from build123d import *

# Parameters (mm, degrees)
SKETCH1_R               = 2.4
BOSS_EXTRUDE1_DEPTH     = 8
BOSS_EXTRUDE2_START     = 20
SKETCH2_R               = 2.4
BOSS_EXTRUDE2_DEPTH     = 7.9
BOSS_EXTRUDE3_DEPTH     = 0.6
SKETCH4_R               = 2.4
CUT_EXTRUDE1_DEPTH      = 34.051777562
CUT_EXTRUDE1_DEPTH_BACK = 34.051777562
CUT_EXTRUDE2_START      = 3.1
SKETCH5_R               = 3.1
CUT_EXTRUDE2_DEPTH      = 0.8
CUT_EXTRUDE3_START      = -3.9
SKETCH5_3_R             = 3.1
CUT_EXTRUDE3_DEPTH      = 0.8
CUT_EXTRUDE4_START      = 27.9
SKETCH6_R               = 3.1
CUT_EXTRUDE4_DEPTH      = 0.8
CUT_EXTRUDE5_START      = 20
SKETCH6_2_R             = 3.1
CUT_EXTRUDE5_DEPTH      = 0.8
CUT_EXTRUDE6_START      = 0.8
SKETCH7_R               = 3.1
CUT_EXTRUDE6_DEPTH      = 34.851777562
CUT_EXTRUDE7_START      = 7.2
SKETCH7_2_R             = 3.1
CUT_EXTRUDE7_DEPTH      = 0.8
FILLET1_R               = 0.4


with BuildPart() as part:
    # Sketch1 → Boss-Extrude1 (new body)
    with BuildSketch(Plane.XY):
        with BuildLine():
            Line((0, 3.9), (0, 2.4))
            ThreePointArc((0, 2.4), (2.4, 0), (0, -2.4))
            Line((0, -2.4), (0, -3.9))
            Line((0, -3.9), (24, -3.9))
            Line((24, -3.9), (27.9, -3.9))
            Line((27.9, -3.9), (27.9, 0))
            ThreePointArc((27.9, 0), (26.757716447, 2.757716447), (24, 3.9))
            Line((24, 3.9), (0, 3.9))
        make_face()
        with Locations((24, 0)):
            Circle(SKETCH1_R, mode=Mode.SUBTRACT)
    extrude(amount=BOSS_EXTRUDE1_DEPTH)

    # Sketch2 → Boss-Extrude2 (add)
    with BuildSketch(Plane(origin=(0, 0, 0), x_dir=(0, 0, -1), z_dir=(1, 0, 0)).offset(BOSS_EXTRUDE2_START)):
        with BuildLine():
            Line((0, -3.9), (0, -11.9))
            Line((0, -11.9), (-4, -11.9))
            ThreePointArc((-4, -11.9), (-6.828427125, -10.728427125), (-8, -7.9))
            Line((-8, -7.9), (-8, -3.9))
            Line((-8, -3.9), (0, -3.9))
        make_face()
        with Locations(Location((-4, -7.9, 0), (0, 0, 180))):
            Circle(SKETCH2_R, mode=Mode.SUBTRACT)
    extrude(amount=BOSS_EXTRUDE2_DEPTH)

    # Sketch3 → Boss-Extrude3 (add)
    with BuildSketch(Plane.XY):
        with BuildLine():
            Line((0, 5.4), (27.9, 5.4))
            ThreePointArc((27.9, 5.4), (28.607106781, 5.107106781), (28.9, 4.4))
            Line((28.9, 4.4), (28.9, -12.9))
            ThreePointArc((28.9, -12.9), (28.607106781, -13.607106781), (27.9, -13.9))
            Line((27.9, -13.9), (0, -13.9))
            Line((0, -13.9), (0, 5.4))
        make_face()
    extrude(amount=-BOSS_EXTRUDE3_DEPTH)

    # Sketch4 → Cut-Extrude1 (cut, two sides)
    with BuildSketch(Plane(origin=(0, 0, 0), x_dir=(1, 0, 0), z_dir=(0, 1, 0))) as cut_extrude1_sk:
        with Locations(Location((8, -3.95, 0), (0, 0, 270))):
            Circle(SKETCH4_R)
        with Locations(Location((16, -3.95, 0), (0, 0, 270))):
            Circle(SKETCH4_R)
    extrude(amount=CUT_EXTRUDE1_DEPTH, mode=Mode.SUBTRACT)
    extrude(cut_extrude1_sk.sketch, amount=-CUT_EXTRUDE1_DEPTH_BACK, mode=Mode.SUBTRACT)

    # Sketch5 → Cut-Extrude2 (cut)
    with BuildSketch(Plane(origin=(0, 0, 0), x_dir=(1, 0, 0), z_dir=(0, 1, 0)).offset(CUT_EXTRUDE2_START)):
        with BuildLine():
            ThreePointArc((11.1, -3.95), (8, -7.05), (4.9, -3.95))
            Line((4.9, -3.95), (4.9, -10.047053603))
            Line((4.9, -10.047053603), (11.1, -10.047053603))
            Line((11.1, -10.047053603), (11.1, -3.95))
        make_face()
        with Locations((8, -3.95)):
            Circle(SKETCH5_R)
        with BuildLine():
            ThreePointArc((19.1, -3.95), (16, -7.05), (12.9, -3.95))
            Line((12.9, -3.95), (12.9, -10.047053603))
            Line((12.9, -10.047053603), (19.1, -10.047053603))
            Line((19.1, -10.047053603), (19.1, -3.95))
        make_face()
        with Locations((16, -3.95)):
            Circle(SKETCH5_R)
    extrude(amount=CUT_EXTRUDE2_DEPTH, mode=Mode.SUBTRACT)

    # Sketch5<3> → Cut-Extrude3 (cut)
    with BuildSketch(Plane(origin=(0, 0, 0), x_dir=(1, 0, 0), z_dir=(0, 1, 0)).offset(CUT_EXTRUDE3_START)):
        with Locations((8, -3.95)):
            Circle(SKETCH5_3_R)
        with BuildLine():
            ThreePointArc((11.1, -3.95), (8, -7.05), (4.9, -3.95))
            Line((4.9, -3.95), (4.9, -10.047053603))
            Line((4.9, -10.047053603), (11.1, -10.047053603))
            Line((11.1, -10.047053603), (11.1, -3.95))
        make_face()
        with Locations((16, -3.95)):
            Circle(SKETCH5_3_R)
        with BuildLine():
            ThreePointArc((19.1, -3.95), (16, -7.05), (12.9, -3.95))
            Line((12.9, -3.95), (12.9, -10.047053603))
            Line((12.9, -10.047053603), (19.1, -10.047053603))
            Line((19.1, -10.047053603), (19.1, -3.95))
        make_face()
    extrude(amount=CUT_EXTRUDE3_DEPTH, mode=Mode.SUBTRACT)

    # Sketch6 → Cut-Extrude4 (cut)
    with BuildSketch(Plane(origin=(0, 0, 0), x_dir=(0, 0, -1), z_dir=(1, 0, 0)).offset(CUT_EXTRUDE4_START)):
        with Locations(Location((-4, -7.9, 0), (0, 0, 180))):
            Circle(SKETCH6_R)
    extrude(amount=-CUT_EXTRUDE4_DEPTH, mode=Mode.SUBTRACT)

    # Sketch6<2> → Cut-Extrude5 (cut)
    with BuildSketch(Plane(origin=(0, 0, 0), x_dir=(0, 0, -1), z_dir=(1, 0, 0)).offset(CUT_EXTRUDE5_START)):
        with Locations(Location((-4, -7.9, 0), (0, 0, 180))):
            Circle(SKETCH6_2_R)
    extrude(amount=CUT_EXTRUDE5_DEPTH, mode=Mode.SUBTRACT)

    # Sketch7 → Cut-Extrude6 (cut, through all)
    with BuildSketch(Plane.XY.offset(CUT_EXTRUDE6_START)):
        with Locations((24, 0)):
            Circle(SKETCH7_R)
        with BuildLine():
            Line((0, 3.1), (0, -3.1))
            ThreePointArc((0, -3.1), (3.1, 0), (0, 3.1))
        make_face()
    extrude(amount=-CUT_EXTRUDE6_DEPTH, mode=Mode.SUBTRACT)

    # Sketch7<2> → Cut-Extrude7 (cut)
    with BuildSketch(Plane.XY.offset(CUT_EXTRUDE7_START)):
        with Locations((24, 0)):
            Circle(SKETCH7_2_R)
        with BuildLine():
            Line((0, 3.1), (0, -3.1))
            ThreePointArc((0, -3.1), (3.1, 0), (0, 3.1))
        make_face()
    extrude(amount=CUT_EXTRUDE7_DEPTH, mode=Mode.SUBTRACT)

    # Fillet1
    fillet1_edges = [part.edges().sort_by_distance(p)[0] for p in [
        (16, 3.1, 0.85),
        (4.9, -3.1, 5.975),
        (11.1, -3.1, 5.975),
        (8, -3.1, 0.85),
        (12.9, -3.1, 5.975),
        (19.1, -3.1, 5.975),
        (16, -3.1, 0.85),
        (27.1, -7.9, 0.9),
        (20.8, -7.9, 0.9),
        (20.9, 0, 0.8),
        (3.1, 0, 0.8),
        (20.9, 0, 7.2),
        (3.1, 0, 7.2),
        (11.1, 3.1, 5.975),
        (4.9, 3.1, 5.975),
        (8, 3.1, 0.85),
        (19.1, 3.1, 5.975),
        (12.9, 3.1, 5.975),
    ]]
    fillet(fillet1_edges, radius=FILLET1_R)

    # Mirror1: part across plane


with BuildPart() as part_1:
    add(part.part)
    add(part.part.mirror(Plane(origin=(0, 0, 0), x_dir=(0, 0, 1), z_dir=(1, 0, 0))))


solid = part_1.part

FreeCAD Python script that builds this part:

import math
import FreeCAD as App
import Part
import Sketcher
from FreeCAD import Vector


def edges_at(feature, points):
    """Names of the edges that pass closest to the given points."""
    edges = feature.Shape.Edges
    near = lambda p: min(range(len(edges)), key=lambda i: edges[i].distToShape(Part.Vertex(*p))[0])
    return sorted({f"Edge{near(p) + 1}" for p in points})

doc = App.newDocument("Part")
body = doc.addObject("PartDesign::Body", "Body")

# Sketch on XY plane
sketch1 = body.newObject("Sketcher::SketchObject", "Sketch")
sketch1.AttachmentSupport = (doc.getObject("XY_Plane"), [""])
sketch1.MapMode = "FlatFace"
sketch1.addGeometry([
    Part.LineSegment(Vector(0, 3.9, 0), Vector(0, 2.4, 0)),  # 0
    Part.ArcOfCircle(Part.Circle(Vector(0, 0, 0), Vector(0, 0, 1), 2.4), math.radians(-90), math.radians(90)),  # 1
    Part.LineSegment(Vector(0, -2.4, 0), Vector(0, -3.9, 0)),  # 2
    Part.LineSegment(Vector(0, -3.9, 0), Vector(27.9, -3.9, 0)),  # 3
    Part.LineSegment(Vector(27.9, -3.9, 0), Vector(27.9, 0, 0)),  # 4
    Part.ArcOfCircle(Part.Circle(Vector(24, 0, 0), Vector(0, 0, 1), 3.9), math.radians(0), math.radians(90)),  # 5
    Part.LineSegment(Vector(24, 3.9, 0), Vector(0, 3.9, 0)),  # 6
    Part.Circle(Vector(24, 0, 0), Vector(0, 0, 1), 2.4),  # 7
], False)
sketch1.addConstraint([
    Sketcher.Constraint("Coincident", 0, 2, 1, 2),
    Sketcher.Constraint("Coincident", 1, 1, 2, 1),
    Sketcher.Constraint("Coincident", 2, 2, 3, 1),
    Sketcher.Constraint("Coincident", 3, 2, 4, 1),
    Sketcher.Constraint("Tangent", 4, 2, 5, 1),
    Sketcher.Constraint("Tangent", 5, 2, 6, 1),
    Sketcher.Constraint("Coincident", 6, 2, 0, 1),
    Sketcher.Constraint("Vertical", 0),
    Sketcher.Constraint("Vertical", 2),
    Sketcher.Constraint("Horizontal", 3),
    Sketcher.Constraint("Vertical", 4),
    Sketcher.Constraint("Horizontal", 6),
    Sketcher.Constraint("Coincident", 1, 3, -1, 1),
    Sketcher.Constraint("Coincident", 7, 3, 5, 3),
    Sketcher.Constraint("Equal", 1, 7),
    Sketcher.Constraint("Symmetric", 2, 2, 6, 2, -1, 1),
    Sketcher.Constraint("PointOnObject", 5, 3, -1),
    Sketcher.Constraint("PointOnObject", 0, 2, -2),
    Sketcher.Constraint("Diameter", 7, 4.8),
    Sketcher.Constraint("Radius", 5, 3.9),
    Sketcher.Constraint("DistanceX", 6, 2, 6, 1, 24.0),
])
pad1 = body.newObject("PartDesign::Pad", "Pad")
pad1.Profile = sketch1
pad1.Length = 8

# Sketch on YZ plane
sketch2 = body.newObject("Sketcher::SketchObject", "Sketch001")
sketch2.AttachmentSupport = (doc.getObject("YZ_Plane"), [""])
sketch2.MapMode = "FlatFace"
sketch2.AttachmentOffset = App.Placement(Vector(0, 0, 20), App.Rotation())
sketch2.addGeometry([
    Part.LineSegment(Vector(-11.9, 0, 0), Vector(-3.9, 0, 0)),  # 0
    Part.LineSegment(Vector(-3.9, 0, 0), Vector(-3.9, 8, 0)),  # 1
    Part.LineSegment(Vector(-3.9, 8, 0), Vector(-7.9, 8, 0)),  # 2
    Part.ArcOfCircle(Part.Circle(Vector(-7.9, 4, 0), Vector(0, 0, 1), 4), math.radians(90), math.radians(180)),  # 3
    Part.LineSegment(Vector(-11.9, 4, 0), Vector(-11.9, 0, 0)),  # 4
    Part.Circle(Vector(-7.9, 4, 0), Vector(0, 0, 1), 2.4),  # 5
], False)
sketch2.addConstraint([
    Sketcher.Constraint("Coincident", 0, 2, 1, 1),
    Sketcher.Constraint("Coincident", 1, 2, 2, 1),
    Sketcher.Constraint("Tangent", 2, 2, 3, 1),
    Sketcher.Constraint("Tangent", 3, 2, 4, 1),
    Sketcher.Constraint("Coincident", 4, 2, 0, 1),
    Sketcher.Constraint("Horizontal", 0),
    Sketcher.Constraint("Vertical", 1),
    Sketcher.Constraint("Horizontal", 2),
    Sketcher.Constraint("Vertical", 4),
    Sketcher.Constraint("Coincident", 5, 3, 3, 3),
    Sketcher.Constraint("PointOnObject", 0, 2, -1),
    Sketcher.Constraint("Equal", 0, 1),
    Sketcher.Constraint("Radius", 3, 4.0),
    Sketcher.Constraint("Diameter", 5, 4.8),
    Sketcher.Constraint("DistanceX", 0, 1, 0, 2, 8.0),
    Sketcher.Constraint("DistanceX", 3, 3, -1, 1, 7.9),
])
pad2 = body.newObject("PartDesign::Pad", "Pad001")
pad2.Profile = sketch2
pad2.Length = 7.9

# Sketch on XY plane
sketch3 = body.newObject("Sketcher::SketchObject", "Sketch002")
sketch3.AttachmentSupport = (doc.getObject("XY_Plane"), [""])
sketch3.MapMode = "FlatFace"
sketch3.addGeometry([
    Part.LineSegment(Vector(27.9, 5.4, 0), Vector(0, 5.4, 0)),  # 0
    Part.LineSegment(Vector(0, 5.4, 0), Vector(0, -13.9, 0)),  # 1
    Part.LineSegment(Vector(0, -13.9, 0), Vector(27.9, -13.9, 0)),  # 2
    Part.ArcOfCircle(Part.Circle(Vector(27.9, -12.9, 0), Vector(0, 0, 1), 1), math.radians(-90), math.radians(0)),  # 3
    Part.LineSegment(Vector(28.9, -12.9, 0), Vector(28.9, 4.4, 0)),  # 4
    Part.ArcOfCircle(Part.Circle(Vector(27.9, 4.4, 0), Vector(0, 0, 1), 1), math.radians(0), math.radians(90)),  # 5
], False)
sketch3.addConstraint([
    Sketcher.Constraint("Coincident", 0, 2, 1, 1),
    Sketcher.Constraint("Coincident", 1, 2, 2, 1),
    Sketcher.Constraint("Tangent", 2, 2, 3, 1),
    Sketcher.Constraint("Tangent", 3, 2, 4, 1),
    Sketcher.Constraint("Tangent", 4, 2, 5, 1),
    Sketcher.Constraint("Tangent", 5, 2, 0, 1),
    Sketcher.Constraint("Horizontal", 0),
    Sketcher.Constraint("Vertical", 1),
    Sketcher.Constraint("Horizontal", 2),
    Sketcher.Constraint("Vertical", 4),
    Sketcher.Constraint("Equal", 3, 5),
    Sketcher.Constraint("PointOnObject", 0, 2, -2),
    Sketcher.Constraint("Radius", 3, 1.0),
    Sketcher.Constraint("DistanceX", 0, 2, 0, 1, 27.9),
    Sketcher.Constraint("DistanceY", 1, 2, 1, 1, 19.3),
    Sketcher.Constraint("DistanceY", 3, 3, -1, 1, 12.9),
])
pad3 = body.newObject("PartDesign::Pad", "Pad002")
pad3.Profile = sketch3
pad3.Length = 0.6
pad3.Reversed = True

# Sketch on XZ plane
sketch4 = body.newObject("Sketcher::SketchObject", "Sketch003")
sketch4.AttachmentSupport = (doc.getObject("XZ_Plane"), [""])
sketch4.MapMode = "FlatFace"
sketch4.addGeometry([
    Part.Circle(Vector(8, 4, 0), Vector(0, 0, 1), 2.4),
    Part.Circle(Vector(16, 4, 0), Vector(0, 0, 1), 2.4),
], False)
sketch4.addConstraint([
    Sketcher.Constraint("Equal", 0, 1),
    Sketcher.Constraint("Horizontal", 0, 3, 1, 3),
    Sketcher.Constraint("Diameter", 0, 4.8),
    Sketcher.Constraint("DistanceX", -1, 1, 0, 3, 8.0),
    Sketcher.Constraint("DistanceX", -1, 1, 1, 3, 16.0),
    Sketcher.Constraint("DistanceY", -1, 1, 0, 3, 3.95),
])
pocket1 = body.newObject("PartDesign::Pocket", "Pocket")
pocket1.Profile = sketch4
pocket1.Type = "ThroughAll"
pocket1.Midplane = True

# Sketch on XZ plane
sketch5 = body.newObject("Sketcher::SketchObject", "Sketch004")
sketch5.AttachmentSupport = (doc.getObject("XZ_Plane"), [""])
sketch5.MapMode = "FlatFace"
sketch5.AttachmentOffset = App.Placement(Vector(0, 0, -3.1), App.Rotation())
sketch5.addGeometry([
    Part.LineSegment(Vector(4.9, 4, 0), Vector(4.9, 10, 0)),  # 0
    Part.LineSegment(Vector(4.9, 10, 0), Vector(11.1, 10, 0)),  # 1
    Part.LineSegment(Vector(11.1, 10, 0), Vector(11.1, 4, 0)),  # 2
    Part.ArcOfCircle(Part.Circle(Vector(8, 4, 0), Vector(0, 0, 1), 3.1), math.radians(180), math.radians(360)),  # 3
    Part.LineSegment(Vector(12.9, 4, 0), Vector(12.9, 10, 0)),  # 4
    Part.LineSegment(Vector(12.9, 10, 0), Vector(19.1, 10, 0)),  # 5
    Part.LineSegment(Vector(19.1, 10, 0), Vector(19.1, 4, 0)),  # 6
    Part.ArcOfCircle(Part.Circle(Vector(16, 4, 0), Vector(0, 0, 1), 3.1), math.radians(180), math.radians(360)),  # 7
], False)
sketch5.addConstraint([
    Sketcher.Constraint("Coincident", 0, 2, 1, 1),
    Sketcher.Constraint("Coincident", 1, 2, 2, 1),
    Sketcher.Constraint("Tangent", 2, 2, 3, 2),
    Sketcher.Constraint("Tangent", 3, 1, 0, 1),
    Sketcher.Constraint("Coincident", 4, 2, 5, 1),
    Sketcher.Constraint("Coincident", 5, 2, 6, 1),
    Sketcher.Constraint("Tangent", 6, 2, 7, 2),
    Sketcher.Constraint("Tangent", 7, 1, 4, 1),
    Sketcher.Constraint("Vertical", 0),
    Sketcher.Constraint("Horizontal", 1),
    Sketcher.Constraint("Vertical", 2),
    Sketcher.Constraint("Vertical", 4),
    Sketcher.Constraint("Horizontal", 5),
    Sketcher.Constraint("Vertical", 6),
    Sketcher.Constraint("Equal", 3, 7),
    Sketcher.Constraint("Horizontal", 3, 3, 7, 3),
    Sketcher.Constraint("Horizontal", 1, 2, 4, 2),
    Sketcher.Constraint("Radius", 3, 3.1),
    Sketcher.Constraint("DistanceX", -1, 1, 3, 3, 8.0),
    Sketcher.Constraint("DistanceX", -1, 1, 7, 3, 16.0),
    Sketcher.Constraint("DistanceY", -1, 1, 3, 3, 3.95),
    Sketcher.Constraint("DistanceY", 0, 1, 0, 2, 6.097054),
])
pocket2 = body.newObject("PartDesign::Pocket", "Pocket001")
pocket2.Profile = sketch5
pocket2.Length = 0.8

# Sketch on XZ plane
sketch6 = body.newObject("Sketcher::SketchObject", "Sketch005")
sketch6.AttachmentSupport = (doc.getObject("XZ_Plane"), [""])
sketch6.MapMode = "FlatFace"
sketch6.AttachmentOffset = App.Placement(Vector(0, 0, 3.9), App.Rotation())
sketch6.addGeometry([
    Part.ArcOfCircle(Part.Circle(Vector(8, 4, 0), Vector(0, 0, 1), 3.1), math.radians(180), math.radians(360)),  # 0
    Part.LineSegment(Vector(4.9, 4, 0), Vector(4.9, 10, 0)),  # 1
    Part.LineSegment(Vector(4.9, 10, 0), Vector(11.1, 10, 0)),  # 2
    Part.LineSegment(Vector(11.1, 10, 0), Vector(11.1, 4, 0)),  # 3
    Part.ArcOfCircle(Part.Circle(Vector(16, 4, 0), Vector(0, 0, 1), 3.1), math.radians(180), math.radians(360)),  # 4
    Part.LineSegment(Vector(12.9, 4, 0), Vector(12.9, 10, 0)),  # 5
    Part.LineSegment(Vector(12.9, 10, 0), Vector(19.1, 10, 0)),  # 6
    Part.LineSegment(Vector(19.1, 10, 0), Vector(19.1, 4, 0)),  # 7
], False)
sketch6.addConstraint([
    Sketcher.Constraint("Tangent", 0, 1, 1, 1),
    Sketcher.Constraint("Coincident", 1, 2, 2, 1),
    Sketcher.Constraint("Coincident", 2, 2, 3, 1),
    Sketcher.Constraint("Tangent", 3, 2, 0, 2),
    Sketcher.Constraint("Tangent", 4, 1, 5, 1),
    Sketcher.Constraint("Coincident", 5, 2, 6, 1),
    Sketcher.Constraint("Coincident", 6, 2, 7, 1),
    Sketcher.Constraint("Tangent", 7, 2, 4, 2),
    Sketcher.Constraint("Vertical", 1),
    Sketcher.Constraint("Horizontal", 2),
    Sketcher.Constraint("Vertical", 3),
    Sketcher.Constraint("Vertical", 5),
    Sketcher.Constraint("Horizontal", 6),
    Sketcher.Constraint("Vertical", 7),
    Sketcher.Constraint("Equal", 0, 4),
    Sketcher.Constraint("Horizontal", 0, 3, 4, 3),
    Sketcher.Constraint("Horizontal", 2, 2, 5, 2),
    Sketcher.Constraint("Radius", 0, 3.1),
    Sketcher.Constraint("DistanceX", -1, 1, 0, 3, 8.0),
    Sketcher.Constraint("DistanceX", -1, 1, 4, 3, 16.0),
    Sketcher.Constraint("DistanceY", -1, 1, 0, 3, 3.95),
    Sketcher.Constraint("DistanceY", 1, 1, 1, 2, 6.097054),
])
pocket3 = body.newObject("PartDesign::Pocket", "Pocket002")
pocket3.Profile = sketch6
pocket3.Length = 0.8

# Sketch on YZ plane
sketch7 = body.newObject("Sketcher::SketchObject", "Sketch006")
sketch7.AttachmentSupport = (doc.getObject("YZ_Plane"), [""])
sketch7.MapMode = "FlatFace"
sketch7.AttachmentOffset = App.Placement(Vector(0, 0, 27.9), App.Rotation())
sketch7.addGeometry(Part.Circle(Vector(-7.9, 4, 0), Vector(0, 0, 1), 3.1), False)
sketch7.addConstraint([
    Sketcher.Constraint("Diameter", 0, 6.2),
    Sketcher.Constraint("DistanceY", -1, 1, 0, 3, 4.0),
    Sketcher.Constraint("DistanceX", 0, 3, -1, 1, 7.9),
])
pocket4 = body.newObject("PartDesign::Pocket", "Pocket003")
pocket4.Profile = sketch7
pocket4.Length = 0.8

# Sketch on YZ plane
sketch8 = body.newObject("Sketcher::SketchObject", "Sketch007")
sketch8.AttachmentSupport = (doc.getObject("YZ_Plane"), [""])
sketch8.MapMode = "FlatFace"
sketch8.AttachmentOffset = App.Placement(Vector(0, 0, 20), App.Rotation())
sketch8.addGeometry(Part.Circle(Vector(-7.9, 4, 0), Vector(0, 0, 1), 3.1), False)
sketch8.addConstraint([
    Sketcher.Constraint("Diameter", 0, 6.2),
    Sketcher.Constraint("DistanceY", -1, 1, 0, 3, 4.0),
    Sketcher.Constraint("DistanceX", 0, 3, -1, 1, 7.9),
])
pocket5 = body.newObject("PartDesign::Pocket", "Pocket004")
pocket5.Profile = sketch8
pocket5.Length = 0.8
pocket5.Reversed = True

# Sketch on XY plane
sketch9 = body.newObject("Sketcher::SketchObject", "Sketch008")
sketch9.AttachmentSupport = (doc.getObject("XY_Plane"), [""])
sketch9.MapMode = "FlatFace"
sketch9.AttachmentOffset = App.Placement(Vector(0, 0, 0.8), App.Rotation())
sketch9.addGeometry([
    Part.Circle(Vector(24, 0, 0), Vector(0, 0, 1), 3.1),
    Part.LineSegment(Vector(0, 3.1, 0), Vector(0, -3.1, 0)),
    Part.ArcOfCircle(Part.Circle(Vector(0, 0, 0), Vector(0, 0, 1), 3.1), math.radians(-90), math.radians(90)),
], False)
sketch9.addConstraint([
    Sketcher.Constraint("Coincident", 1, 1, 2, 2),
    Sketcher.Constraint("Coincident", 2, 1, 1, 2),
    Sketcher.Constraint("Vertical", 1),
    Sketcher.Constraint("Coincident", 2, 3, -1, 1),
    Sketcher.Constraint("Equal", 0, 2),
    Sketcher.Constraint("PointOnObject", 0, 3, -1),
    Sketcher.Constraint("PointOnObject", 1, 1, -2),
    Sketcher.Constraint("Diameter", 0, 6.2),
    Sketcher.Constraint("DistanceX", -1, 1, 0, 3, 24.0),
])
pocket6 = body.newObject("PartDesign::Pocket", "Pocket005")
pocket6.Profile = sketch9
pocket6.Type = "ThroughAll"

# Sketch on XY plane
sketch10 = body.newObject("Sketcher::SketchObject", "Sketch009")
sketch10.AttachmentSupport = (doc.getObject("XY_Plane"), [""])
sketch10.MapMode = "FlatFace"
sketch10.AttachmentOffset = App.Placement(Vector(0, 0, 7.2), App.Rotation())
sketch10.addGeometry([
    Part.Circle(Vector(24, 0, 0), Vector(0, 0, 1), 3.1),
    Part.LineSegment(Vector(0, 3.1, 0), Vector(0, -3.1, 0)),
    Part.ArcOfCircle(Part.Circle(Vector(0, 0, 0), Vector(0, 0, 1), 3.1), math.radians(-90), math.radians(90)),
], False)
sketch10.addConstraint([
    Sketcher.Constraint("Coincident", 1, 1, 2, 2),
    Sketcher.Constraint("Coincident", 2, 1, 1, 2),
    Sketcher.Constraint("Vertical", 1),
    Sketcher.Constraint("Coincident", 2, 3, -1, 1),
    Sketcher.Constraint("Equal", 0, 2),
    Sketcher.Constraint("PointOnObject", 0, 3, -1),
    Sketcher.Constraint("PointOnObject", 1, 1, -2),
    Sketcher.Constraint("Diameter", 0, 6.2),
    Sketcher.Constraint("DistanceX", -1, 1, 0, 3, 24.0),
])
pocket7 = body.newObject("PartDesign::Pocket", "Pocket006")
pocket7.Profile = sketch10
pocket7.Length = 0.8
pocket7.Reversed = True
doc.recompute()

fillet = body.newObject("PartDesign::Fillet", "Fillet")
fillet.Base = (pocket7, edges_at(pocket7, [
    (16, 3.1, 0.85),
    (4.9, -3.1, 5.975),
    (11.1, -3.1, 5.975),
    (8, -3.1, 0.85),
    (12.9, -3.1, 5.975),
    (19.1, -3.1, 5.975),
    (16, -3.1, 0.85),
    (27.1, -7.9, 0.9),
    (20.8, -7.9, 0.9),
    (20.9, 0, 0.8),
    (3.1, 0, 0.8),
    (20.9, 0, 7.2),
    (3.1, 0, 7.2),
    (11.1, 3.1, 5.975),
    (4.9, 3.1, 5.975),
    (8, 3.1, 0.85),
    (19.1, 3.1, 5.975),
    (12.9, 3.1, 5.975),
]))
fillet.Radius = 0.4
body2 = doc.addObject("PartDesign::Body", "Body001")
doc.recompute()

body2.BaseFeature = body
doc.recompute()

mirroring = doc.addObject("Part::Mirroring", "Mirroring")
mirroring.Source = body
mirroring.Base = Vector(0, 0, 0)
mirroring.Normal = Vector(1, 0, 0)
body3 = doc.addObject("PartDesign::Body", "Body002")
body3.BaseFeature = mirroring
boolean = body2.newObject("PartDesign::Boolean", "Boolean")
boolean.Type = "Fuse"
boolean.addObjects([body3])
doc.recompute()
mirroring.Visibility = False

doc.recompute()
